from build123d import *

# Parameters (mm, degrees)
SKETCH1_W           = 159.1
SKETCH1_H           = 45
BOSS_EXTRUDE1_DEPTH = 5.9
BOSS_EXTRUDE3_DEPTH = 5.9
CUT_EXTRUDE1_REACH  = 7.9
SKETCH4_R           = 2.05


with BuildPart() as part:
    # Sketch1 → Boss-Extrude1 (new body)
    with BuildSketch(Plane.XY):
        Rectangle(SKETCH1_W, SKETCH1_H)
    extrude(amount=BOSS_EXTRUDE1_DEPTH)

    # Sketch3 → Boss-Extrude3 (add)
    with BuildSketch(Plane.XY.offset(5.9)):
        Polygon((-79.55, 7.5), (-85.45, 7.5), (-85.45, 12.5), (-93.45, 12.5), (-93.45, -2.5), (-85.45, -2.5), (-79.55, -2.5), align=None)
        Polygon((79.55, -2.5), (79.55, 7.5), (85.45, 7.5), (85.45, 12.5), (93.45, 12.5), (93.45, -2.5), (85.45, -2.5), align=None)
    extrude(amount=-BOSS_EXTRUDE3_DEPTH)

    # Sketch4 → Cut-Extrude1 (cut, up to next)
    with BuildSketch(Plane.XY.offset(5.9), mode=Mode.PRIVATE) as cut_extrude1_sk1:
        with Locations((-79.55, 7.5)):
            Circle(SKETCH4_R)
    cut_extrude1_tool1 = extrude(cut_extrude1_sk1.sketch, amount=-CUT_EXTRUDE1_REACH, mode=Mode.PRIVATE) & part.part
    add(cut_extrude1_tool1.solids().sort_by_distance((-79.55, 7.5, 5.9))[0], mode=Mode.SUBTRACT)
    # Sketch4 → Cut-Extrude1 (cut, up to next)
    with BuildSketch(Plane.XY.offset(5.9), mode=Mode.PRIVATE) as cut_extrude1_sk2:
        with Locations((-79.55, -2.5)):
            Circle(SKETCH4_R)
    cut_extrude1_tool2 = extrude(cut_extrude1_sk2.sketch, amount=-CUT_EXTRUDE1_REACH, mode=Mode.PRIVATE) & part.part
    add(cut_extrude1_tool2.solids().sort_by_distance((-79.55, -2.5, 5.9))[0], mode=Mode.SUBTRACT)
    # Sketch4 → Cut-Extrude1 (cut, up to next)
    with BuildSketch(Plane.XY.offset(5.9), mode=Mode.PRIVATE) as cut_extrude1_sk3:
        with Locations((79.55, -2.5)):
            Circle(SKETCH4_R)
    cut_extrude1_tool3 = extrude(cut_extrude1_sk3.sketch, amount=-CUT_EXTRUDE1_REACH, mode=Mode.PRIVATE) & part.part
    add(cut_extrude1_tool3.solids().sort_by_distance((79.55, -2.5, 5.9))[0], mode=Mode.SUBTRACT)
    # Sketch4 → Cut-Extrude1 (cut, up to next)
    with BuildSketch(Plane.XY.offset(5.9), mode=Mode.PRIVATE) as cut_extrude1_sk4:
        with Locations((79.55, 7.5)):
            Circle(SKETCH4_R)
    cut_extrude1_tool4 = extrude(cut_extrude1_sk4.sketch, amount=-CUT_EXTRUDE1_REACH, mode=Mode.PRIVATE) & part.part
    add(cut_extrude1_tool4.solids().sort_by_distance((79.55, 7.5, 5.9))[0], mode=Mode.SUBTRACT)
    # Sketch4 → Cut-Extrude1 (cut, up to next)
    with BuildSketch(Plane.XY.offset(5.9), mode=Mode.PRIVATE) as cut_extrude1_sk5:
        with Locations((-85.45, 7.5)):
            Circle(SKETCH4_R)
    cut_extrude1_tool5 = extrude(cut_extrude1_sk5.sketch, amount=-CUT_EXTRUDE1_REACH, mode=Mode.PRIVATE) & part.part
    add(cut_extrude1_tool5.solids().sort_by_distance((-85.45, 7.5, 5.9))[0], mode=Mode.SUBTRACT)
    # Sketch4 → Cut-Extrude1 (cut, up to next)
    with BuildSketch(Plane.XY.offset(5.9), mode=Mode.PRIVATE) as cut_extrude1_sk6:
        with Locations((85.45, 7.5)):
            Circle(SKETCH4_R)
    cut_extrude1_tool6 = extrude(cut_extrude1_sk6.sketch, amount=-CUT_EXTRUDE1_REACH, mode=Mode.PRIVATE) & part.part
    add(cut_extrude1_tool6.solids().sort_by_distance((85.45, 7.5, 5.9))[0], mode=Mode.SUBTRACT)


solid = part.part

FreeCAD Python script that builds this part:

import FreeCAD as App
import Part
import Sketcher

V = App.Vector

doc = App.newDocument("Part")
params = doc.addObject("Spreadsheet::Sheet", "Params")
for row, (alias, value) in enumerate([
    ("sketch1_height", "45 mm"),
    ("sketch1_width", "159.1 mm"),
    ("pad1_length", "5.9 mm"),
    ("sketch2_width", "8 mm"),
    ("sketch2_height", "5 mm"),
    ("sketch2_height2", "15 mm"),
    ("sketch2_width2", "5.9 mm"),
    ("pad2_length", "5.9 mm"),
    ("sketch3_diameter", "4.1 mm"),
    ("sketch4_diameter", "4.1 mm"),
    ("sketch5_diameter", "4.1 mm"),
    ("sketch6_diameter", "4.1 mm"),
    ("sketch7_diameter", "4.1 mm"),
    ("sketch8_diameter", "4.1 mm"),
], start=1):
    params.set(f"A{row}", alias)
    params.set(f"B{row}", "=" + value)
    params.setAlias(f"B{row}", alias)

body = doc.addObject("PartDesign::Body", "Body")

sketch1 = body.newObject("Sketcher::SketchObject", "Sketch")
sketch1.AttachmentSupport = (doc.getObject("XY_Plane"), [""])
sketch1.MapMode = "FlatFace"
sketch1.addGeometry(Part.LineSegment(V(-80, 22, 0), V(-80, -22, 0)), False)
sketch1.addGeometry(Part.LineSegment(V(-80, -22, 0), V(80, -22, 0)), False)
sketch1.addGeometry(Part.LineSegment(V(80, -22, 0), V(80, 22, 0)), False)
sketch1.addGeometry(Part.LineSegment(V(80, 22, 0), V(-80, 22, 0)), False)
sketch1.addConstraint(Sketcher.Constraint("Coincident", 0, 2, 1, 1))
sketch1.addConstraint(Sketcher.Constraint("Coincident", 1, 2, 2, 1))
sketch1.addConstraint(Sketcher.Constraint("Coincident", 2, 2, 3, 1))
sketch1.addConstraint(Sketcher.Constraint("Coincident", 3, 2, 0, 1))
sketch1.addConstraint(Sketcher.Constraint("Vertical", 0))
sketch1.addConstraint(Sketcher.Constraint("Horizontal", 1))
sketch1.addConstraint(Sketcher.Constraint("Vertical", 2))
sketch1.addConstraint(Sketcher.Constraint("Horizontal", 3))
sketch1.addConstraint(Sketcher.Constraint("Symmetric", 0, 2, 2, 2, -1, 1))
sketch1.addConstraint(Sketcher.Constraint("DistanceY", 0, 2, 0, 1, 45.0))
sketch1.addConstraint(Sketcher.Constraint("DistanceX", 1, 1, 1, 2, 159.1))
sketch1.setExpression("Constraints[9]", "Params.sketch1_height")
sketch1.setExpression("Constraints[10]", "Params.sketch1_width")
pad1 = body.newObject("PartDesign::Pad", "Pad")
pad1.Profile = sketch1
pad1.setExpression("Length", "Params.pad1_length")

sketch2 = body.newObject("Sketcher::SketchObject", "Sketch001")
sketch2.AttachmentSupport = (doc.getObject("XY_Plane"), [""])
sketch2.MapMode = "FlatFace"
sketch2.AttachmentOffset = App.Placement(V(0, 0, 5.9), App.Rotation())
sketch2.addGeometry(Part.LineSegment(V(-80, 8, 0), V(-85, 8, 0)), False)
sketch2.addGeometry(Part.LineSegment(V(-85, 8, 0), V(-85, 12, 0)), False)
sketch2.addGeometry(Part.LineSegment(V(-85, 12, 0), V(-93, 12, 0)), False)
sketch2.addGeometry(Part.LineSegment(V(-93, 12, 0), V(-93, -2, 0)), False)
sketch2.addGeometry(Part.LineSegment(V(-93, -2, 0), V(-80, -2, 0)), False)
sketch2.addGeometry(Part.LineSegment(V(-80, -2, 0), V(-80, 8, 0)), False)
sketch2.addGeometry(Part.LineSegment(V(80, 8, 0), V(80, -2, 0)), False)
sketch2.addGeometry(Part.LineSegment(V(80, -2, 0), V(93, -2, 0)), False)
sketch2.addGeometry(Part.LineSegment(V(93, -2, 0), V(93, 12, 0)), False)
sketch2.addGeometry(Part.LineSegment(V(93, 12, 0), V(85, 12, 0)), False)
sketch2.addGeometry(Part.LineSegment(V(85, 12, 0), V(85, 8, 0)), False)
sketch2.addGeometry(Part.LineSegment(V(85, 8, 0), V(80, 8, 0)), False)
sketch2.addConstraint(Sketcher.Constraint("Coincident", 0, 2, 1, 1))
sketch2.addConstraint(Sketcher.Constraint("Coincident", 1, 2, 2, 1))
sketch2.addConstraint(Sketcher.Constraint("Coincident", 2, 2, 3, 1))
sketch2.addConstraint(Sketcher.Constraint("Coincident", 3, 2, 4, 1))
sketch2.addConstraint(Sketcher.Constraint("Coincident", 4, 2, 5, 1))
sketch2.addConstraint(Sketcher.Constraint("Coincident", 5, 2, 0, 1))
sketch2.addConstraint(Sketcher.Constraint("Coincident", 6, 2, 7, 1))
sketch2.addConstraint(Sketcher.Constraint("Coincident", 7, 2, 8, 1))
sketch2.addConstraint(Sketcher.Constraint("Coincident", 8, 2, 9, 1))
sketch2.addConstraint(Sketcher.Constraint("Coincident", 9, 2, 10, 1))
sketch2.addConstraint(Sketcher.Constraint("Coincident", 10, 2, 11, 1))
sketch2.addConstraint(Sketcher.Constraint("Coincident", 11, 2, 6, 1))
sketch2.addConstraint(Sketcher.Constraint("Horizontal", 0))
sketch2.addConstraint(Sketcher.Constraint("Vertical", 1))
sketch2.addConstraint(Sketcher.Constraint("Horizontal", 2))
sketch2.addConstraint(Sketcher.Constraint("Vertical", 3))
sketch2.addConstraint(Sketcher.Constraint("Horizontal", 4))
sketch2.addConstraint(Sketcher.Constraint("Vertical", 5))
sketch2.addConstraint(Sketcher.Constraint("Vertical", 6))
sketch2.addConstraint(Sketcher.Constraint("Horizontal", 7))
sketch2.addConstraint(Sketcher.Constraint("Vertical", 8))
sketch2.addConstraint(Sketcher.Constraint("Horizontal", 9))
sketch2.addConstraint(Sketcher.Constraint("Vertical", 10))
sketch2.addConstraint(Sketcher.Constraint("Horizontal", 11))
sketch2.addConstraint(Sketcher.Constraint("Symmetric", 4, 2, 6, 2, -2))
sketch2.addConstraint(Sketcher.Constraint("Symmetric", 2, 2, 8, 2, -2))
sketch2.addConstraint(Sketcher.Constraint("Symmetric", 0, 2, 10, 2, -2))
sketch2.addConstraint(Sketcher.Constraint("DistanceX", 2, 2, 2, 1, 8.0))
sketch2.addConstraint(Sketcher.Constraint("DistanceY", 1, 1, 1, 2, 5.0))
sketch2.addConstraint(Sketcher.Constraint("DistanceY", 3, 2, 3, 1, 15.0))
sketch2.addConstraint(Sketcher.Constraint("DistanceX", 0, 2, 0, 1, 5.9))
sketch2.addConstraint(Sketcher.Constraint("DistanceX", 0, 2, 6, 2, 165.0))
sketch2.addConstraint(Sketcher.Constraint("DistanceY", -1, 1, 0, 2, 7.5))
sketch2.setExpression("Constraints[27]", "Params.sketch2_width")
sketch2.setExpression("Constraints[28]", "Params.sketch2_height")
sketch2.setExpression("Constraints[29]", "Params.sketch2_height2")
sketch2.setExpression("Constraints[30]", "Params.sketch2_width2")
pad2 = body.newObject("PartDesign::Pad", "Pad001")
pad2.Profile = sketch2
pad2.setExpression("Length", "Params.pad2_length")
pad2.Reversed = True

sketch3 = body.newObject("Sketcher::SketchObject", "Sketch002")
sketch3.AttachmentSupport = (doc.getObject("XY_Plane"), [""])
sketch3.MapMode = "FlatFace"
sketch3.AttachmentOffset = App.Placement(V(0, 0, 5.9), App.Rotation())
sketch3.addGeometry(Part.Circle(V(-79.5, 7.5, 0), V(0, 0, 1), 2), False)
sketch3.addConstraint(Sketcher.Constraint("Diameter", 0, 4.1))
sketch3.addConstraint(Sketcher.Constraint("DistanceY", -1, 1, 0, 3, 7.5))
sketch3.addConstraint(Sketcher.Constraint("DistanceX", 0, 3, -1, 1, 79.55))
sketch3.setExpression("Constraints[0]", "Params.sketch3_diameter")
pocket1 = body.newObject("PartDesign::Pocket", "Pocket")
pocket1.Profile = sketch3
pocket1.Type = "UpToFirst"

sketch4 = body.newObject("Sketcher::SketchObject", "Sketch003")
sketch4.AttachmentSupport = (doc.getObject("XY_Plane"), [""])
sketch4.MapMode = "FlatFace"
sketch4.AttachmentOffset = App.Placement(V(0, 0, 5.9), App.Rotation())
sketch4.addGeometry(Part.Circle(V(-79.5, -2.5, 0), V(0, 0, 1), 2), False)
sketch4.addConstraint(Sketcher.Constraint("Diameter", 0, 4.1))
sketch4.addConstraint(Sketcher.Constraint("DistanceY", 0, 3, -1, 1, 2.5))
sketch4.addConstraint(Sketcher.Constraint("DistanceX", 0, 3, -1, 1, 79.55))
sketch4.setExpression("Constraints[0]", "Params.sketch4_diameter")
pocket2 = body.newObject("PartDesign::Pocket", "Pocket001")
pocket2.Profile = sketch4
pocket2.Type = "UpToFirst"

sketch5 = body.newObject("Sketcher::SketchObject", "Sketch004")
sketch5.AttachmentSupport = (doc.getObject("XY_Plane"), [""])
sketch5.MapMode = "FlatFace"
sketch5.AttachmentOffset = App.Placement(V(0, 0, 5.9), App.Rotation())
sketch5.addGeometry(Part.Circle(V(79.5, -2.5, 0), V(0, 0, 1), 2), False)
sketch5.addConstraint(Sketcher.Constraint("Diameter", 0, 4.1))
sketch5.addConstraint(Sketcher.Constraint("DistanceY", 0, 3, -1, 1, 2.5))
sketch5.addConstraint(Sketcher.Constraint("DistanceX", -1, 1, 0, 3, 79.55))
sketch5.setExpression("Constraints[0]", "Params.sketch5_diameter")
pocket3 = body.newObject("PartDesign::Pocket", "Pocket002")
pocket3.Profile = sketch5
pocket3.Type = "UpToFirst"

sketch6 = body.newObject("Sketcher::SketchObject", "Sketch005")
sketch6.AttachmentSupport = (doc.getObject("XY_Plane"), [""])
sketch6.MapMode = "FlatFace"
sketch6.AttachmentOffset = App.Placement(V(0, 0, 5.9), App.Rotation())
sketch6.addGeometry(Part.Circle(V(79.5, 7.5, 0), V(0, 0, 1), 2), False)
sketch6.addConstraint(Sketcher.Constraint("Diameter", 0, 4.1))
sketch6.addConstraint(Sketcher.Constraint("DistanceY", -1, 1, 0, 3, 7.5))
sketch6.addConstraint(Sketcher.Constraint("DistanceX", -1, 1, 0, 3, 79.55))
sketch6.setExpression("Constraints[0]", "Params.sketch6_diameter")
pocket4 = body.newObject("PartDesign::Pocket", "Pocket003")
pocket4.Profile = sketch6
pocket4.Type = "UpToFirst"

sketch7 = body.newObject("Sketcher::SketchObject", "Sketch006")
sketch7.AttachmentSupport = (doc.getObject("XY_Plane"), [""])
sketch7.MapMode = "FlatFace"
sketch7.AttachmentOffset = App.Placement(V(0, 0, 5.9), App.Rotation())
sketch7.addGeometry(Part.Circle(V(-85.5, 7.5, 0), V(0, 0, 1), 2), False)
sketch7.addConstraint(Sketcher.Constraint("Diameter", 0, 4.1))
sketch7.addConstraint(Sketcher.Constraint("DistanceY", -1, 1, 0, 3, 7.5))
sketch7.addConstraint(Sketcher.Constraint("DistanceX", 0, 3, -1, 1, 85.45))
sketch7.setExpression("Constraints[0]", "Params.sketch7_diameter")
pocket5 = body.newObject("PartDesign::Pocket", "Pocket004")
pocket5.Profile = sketch7
pocket5.Type = "UpToFirst"

sketch8 = body.newObject("Sketcher::SketchObject", "Sketch007")
sketch8.AttachmentSupport = (doc.getObject("XY_Plane"), [""])
sketch8.MapMode = "FlatFace"
sketch8.AttachmentOffset = App.Placement(V(0, 0, 5.9), App.Rotation())
sketch8.addGeometry(Part.Circle(V(85.5, 7.5, 0), V(0, 0, 1), 2), False)
sketch8.addConstraint(Sketcher.Constraint("Diameter", 0, 4.1))
sketch8.addConstraint(Sketcher.Constraint("DistanceY", -1, 1, 0, 3, 7.5))
sketch8.addConstraint(Sketcher.Constraint("DistanceX", -1, 1, 0, 3, 85.45))
sketch8.setExpression("Constraints[0]", "Params.sketch8_diameter")
pocket6 = body.newObject("PartDesign::Pocket", "Pocket005")
pocket6.Profile = sketch8
pocket6.Type = "UpToFirst"

doc.recompute()
